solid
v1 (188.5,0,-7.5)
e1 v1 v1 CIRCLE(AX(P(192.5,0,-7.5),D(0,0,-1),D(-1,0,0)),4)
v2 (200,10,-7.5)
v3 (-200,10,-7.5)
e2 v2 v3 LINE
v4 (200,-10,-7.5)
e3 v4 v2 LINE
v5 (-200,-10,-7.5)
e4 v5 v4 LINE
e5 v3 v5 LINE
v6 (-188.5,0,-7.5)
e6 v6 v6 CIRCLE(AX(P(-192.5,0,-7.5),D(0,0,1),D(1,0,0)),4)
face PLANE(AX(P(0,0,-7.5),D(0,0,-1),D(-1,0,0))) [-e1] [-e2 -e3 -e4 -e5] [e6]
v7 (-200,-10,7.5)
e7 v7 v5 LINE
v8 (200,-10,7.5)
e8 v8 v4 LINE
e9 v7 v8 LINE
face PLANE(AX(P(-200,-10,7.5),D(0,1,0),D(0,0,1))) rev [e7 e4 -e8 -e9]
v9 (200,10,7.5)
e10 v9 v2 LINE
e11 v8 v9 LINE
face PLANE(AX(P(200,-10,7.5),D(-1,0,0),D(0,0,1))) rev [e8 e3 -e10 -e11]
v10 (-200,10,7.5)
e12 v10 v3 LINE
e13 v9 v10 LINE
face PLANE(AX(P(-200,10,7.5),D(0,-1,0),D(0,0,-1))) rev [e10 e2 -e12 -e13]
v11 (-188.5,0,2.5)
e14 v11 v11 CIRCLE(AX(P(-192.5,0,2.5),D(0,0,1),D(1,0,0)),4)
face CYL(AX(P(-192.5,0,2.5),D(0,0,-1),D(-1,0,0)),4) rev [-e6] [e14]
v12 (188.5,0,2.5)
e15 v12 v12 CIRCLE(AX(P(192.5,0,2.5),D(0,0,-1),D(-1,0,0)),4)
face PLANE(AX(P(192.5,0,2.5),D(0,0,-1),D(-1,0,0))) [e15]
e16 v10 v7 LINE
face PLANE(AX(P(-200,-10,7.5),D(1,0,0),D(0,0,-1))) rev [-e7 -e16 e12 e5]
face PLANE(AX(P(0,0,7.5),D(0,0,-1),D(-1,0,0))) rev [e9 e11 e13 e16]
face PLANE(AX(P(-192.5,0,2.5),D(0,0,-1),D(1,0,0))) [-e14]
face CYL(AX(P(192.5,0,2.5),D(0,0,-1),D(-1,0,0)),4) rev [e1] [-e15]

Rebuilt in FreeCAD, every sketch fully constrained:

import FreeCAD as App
import Part
import Sketcher


def add_polygon(sketch, points):
    """Adds a closed chain of lines whose ends are joined by coincident constraints."""
    first, n = sketch.GeometryCount, len(points)
    for a, b in zip(points, points[1:] + points[:1]):
        sketch.addGeometry(Part.LineSegment(App.Vector(*a, 0), App.Vector(*b, 0)), False)
    for i in range(n):
        sketch.addConstraint(Sketcher.Constraint("Coincident", first + i, 2, first + (i + 1) % n, 1))

doc = App.newDocument("Part")
body = doc.addObject("PartDesign::Body", "Body")

# Sketch on XY plane
sketch1 = doc.addObject("Sketcher::SketchObject", "Sketch")
body.addObject(sketch1)
sketch1.AttachmentSupport = (doc.XY_Plane, [""])
sketch1.MapMode = "FlatFace"
add_polygon(sketch1, [(-200, 10), (-200, -10), (200, -10), (200, 10)])  # lines 0-3
sketch1.addConstraint([
    Sketcher.Constraint("Vertical", 0),
    Sketcher.Constraint("Horizontal", 1),
    Sketcher.Constraint("Vertical", 2),
    Sketcher.Constraint("Horizontal", 3),
    Sketcher.Constraint("Symmetric", 0, 2, 2, 2, -1, 1),
    Sketcher.Constraint("DistanceX", 1, 1, 1, 2, 400.0),
    Sketcher.Constraint("DistanceY", 0, 2, 0, 1, 20.0),
])
pad1 = doc.addObject("PartDesign::Pad", "Pad")
body.addObject(pad1)
pad1.Profile = sketch1
pad1.Length = 15
pad1.Midplane = True

# Sketch on XY plane
sketch2 = doc.addObject("Sketcher::SketchObject", "Sketch001")
body.addObject(sketch2)
sketch2.AttachmentSupport = (doc.XY_Plane, [""])
sketch2.MapMode = "FlatFace"
sketch2.AttachmentOffset = App.Placement(App.Vector(0, 0, -7.5), App.Rotation())
sketch2.addGeometry(Part.Circle(App.Vector(192.5, 0, 0), App.Vector(0, 0, 1), 4), False)
sketch2.addConstraint([
    Sketcher.Constraint("PointOnObject", 0, 3, -1),
    Sketcher.Constraint("Diameter", 0, 8.0),
    Sketcher.Constraint("DistanceX", -1, 1, 0, 3, 192.5),
])
pocket1 = doc.addObject("PartDesign::Pocket", "Pocket")
body.addObject(pocket1)
pocket1.Profile = sketch2
pocket1.Length = 10
pocket1.Reversed = True
doc.recompute()

mirrored = doc.addObject("PartDesign::Mirrored", "Mirrored")
body.addObject(mirrored)
mirrored.Originals = [pocket1]
mirrored.MirrorPlane = (doc.YZ_Plane, [""])
body.Tip = mirrored

doc.recompute()
